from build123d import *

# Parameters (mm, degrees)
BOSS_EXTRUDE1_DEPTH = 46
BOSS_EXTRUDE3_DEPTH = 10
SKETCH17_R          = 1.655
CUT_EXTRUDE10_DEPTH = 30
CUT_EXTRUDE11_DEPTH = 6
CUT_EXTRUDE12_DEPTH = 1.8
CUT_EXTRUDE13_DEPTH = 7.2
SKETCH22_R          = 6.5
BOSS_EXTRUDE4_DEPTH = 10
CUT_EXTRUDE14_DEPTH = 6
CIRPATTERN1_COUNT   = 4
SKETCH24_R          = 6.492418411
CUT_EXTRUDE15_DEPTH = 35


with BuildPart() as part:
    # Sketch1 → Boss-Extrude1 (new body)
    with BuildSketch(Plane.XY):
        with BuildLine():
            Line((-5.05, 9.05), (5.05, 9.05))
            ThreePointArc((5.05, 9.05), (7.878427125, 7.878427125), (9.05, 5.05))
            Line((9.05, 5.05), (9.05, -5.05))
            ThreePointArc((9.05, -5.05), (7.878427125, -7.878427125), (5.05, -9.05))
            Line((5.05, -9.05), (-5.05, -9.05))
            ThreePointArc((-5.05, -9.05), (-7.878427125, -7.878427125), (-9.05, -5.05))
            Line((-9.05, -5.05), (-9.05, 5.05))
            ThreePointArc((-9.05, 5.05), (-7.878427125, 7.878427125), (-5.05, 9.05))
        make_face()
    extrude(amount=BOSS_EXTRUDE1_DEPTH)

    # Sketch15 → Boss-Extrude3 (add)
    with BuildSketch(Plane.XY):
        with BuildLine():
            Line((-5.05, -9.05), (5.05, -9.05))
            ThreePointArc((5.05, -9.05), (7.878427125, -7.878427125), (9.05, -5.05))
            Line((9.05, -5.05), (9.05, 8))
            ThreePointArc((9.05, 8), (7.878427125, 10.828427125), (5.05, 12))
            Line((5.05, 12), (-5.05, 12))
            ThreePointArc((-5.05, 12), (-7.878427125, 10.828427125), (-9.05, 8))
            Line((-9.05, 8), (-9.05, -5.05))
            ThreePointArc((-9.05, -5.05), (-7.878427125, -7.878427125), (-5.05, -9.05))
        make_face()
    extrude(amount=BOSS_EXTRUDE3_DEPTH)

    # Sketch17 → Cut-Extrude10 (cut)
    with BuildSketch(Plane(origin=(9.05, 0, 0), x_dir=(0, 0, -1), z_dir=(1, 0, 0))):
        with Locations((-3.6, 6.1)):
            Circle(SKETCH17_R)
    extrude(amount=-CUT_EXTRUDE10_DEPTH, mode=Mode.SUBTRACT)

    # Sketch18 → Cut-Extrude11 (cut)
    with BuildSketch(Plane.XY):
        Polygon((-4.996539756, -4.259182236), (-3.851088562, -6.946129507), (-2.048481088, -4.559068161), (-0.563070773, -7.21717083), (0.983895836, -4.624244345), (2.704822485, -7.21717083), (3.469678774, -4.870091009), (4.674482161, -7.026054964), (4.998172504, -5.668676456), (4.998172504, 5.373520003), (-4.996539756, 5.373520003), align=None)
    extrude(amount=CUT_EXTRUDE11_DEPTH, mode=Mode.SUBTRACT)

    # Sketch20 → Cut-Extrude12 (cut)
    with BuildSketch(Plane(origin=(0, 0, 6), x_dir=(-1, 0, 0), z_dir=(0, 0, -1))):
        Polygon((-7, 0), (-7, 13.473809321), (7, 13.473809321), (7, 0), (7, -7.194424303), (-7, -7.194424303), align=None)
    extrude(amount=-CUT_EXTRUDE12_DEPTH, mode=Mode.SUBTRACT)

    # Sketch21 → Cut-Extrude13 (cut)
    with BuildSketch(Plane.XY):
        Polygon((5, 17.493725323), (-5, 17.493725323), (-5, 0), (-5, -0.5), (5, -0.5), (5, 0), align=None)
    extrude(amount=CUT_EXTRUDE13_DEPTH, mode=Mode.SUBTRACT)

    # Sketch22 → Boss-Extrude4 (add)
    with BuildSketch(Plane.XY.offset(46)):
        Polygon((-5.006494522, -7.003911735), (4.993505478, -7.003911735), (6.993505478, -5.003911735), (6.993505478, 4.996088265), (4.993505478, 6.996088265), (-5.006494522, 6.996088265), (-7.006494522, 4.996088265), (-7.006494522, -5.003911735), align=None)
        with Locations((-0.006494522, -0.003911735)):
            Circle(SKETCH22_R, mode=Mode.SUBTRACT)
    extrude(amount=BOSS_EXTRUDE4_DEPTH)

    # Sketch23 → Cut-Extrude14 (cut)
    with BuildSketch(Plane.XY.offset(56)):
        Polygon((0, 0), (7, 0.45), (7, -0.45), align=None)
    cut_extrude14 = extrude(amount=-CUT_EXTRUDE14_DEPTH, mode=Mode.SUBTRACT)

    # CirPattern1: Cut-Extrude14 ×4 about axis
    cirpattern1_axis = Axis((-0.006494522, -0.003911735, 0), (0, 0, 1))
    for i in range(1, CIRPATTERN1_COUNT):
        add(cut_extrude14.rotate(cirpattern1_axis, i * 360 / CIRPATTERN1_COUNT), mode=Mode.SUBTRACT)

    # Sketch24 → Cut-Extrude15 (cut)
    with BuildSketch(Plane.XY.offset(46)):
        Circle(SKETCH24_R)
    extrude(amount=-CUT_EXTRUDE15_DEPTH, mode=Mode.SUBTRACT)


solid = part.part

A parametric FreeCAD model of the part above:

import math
import FreeCAD as App
import Part
import Sketcher
from FreeCAD import Vector
Q = App.Units.Quantity

doc = App.newDocument("Part")
body = doc.addObject("PartDesign::Body", "Body")

# Sketch on XY plane
sketch1 = doc.addObject("Sketcher::SketchObject", "Sketch")
body.addObject(sketch1)
sketch1.AttachmentSupport = (doc.XY_Plane, [""])
sketch1.MapMode = "FlatFace"
sketch1.addGeometry([
    Part.LineSegment(Vector(5, 9.1, 0), Vector(-5, 9.1, 0)),  # 0
    Part.ArcOfCircle(Part.Circle(Vector(-5.1, 5.1, 0), Vector(0, 0, 1), 4), math.radians(90), math.radians(180)),  # 1
    Part.LineSegment(Vector(-9.1, 5, 0), Vector(-9.1, -5, 0)),  # 2
    Part.ArcOfCircle(Part.Circle(Vector(-5.1, -5.1, 0), Vector(0, 0, 1), 4), math.radians(180), math.radians(270)),  # 3
    Part.LineSegment(Vector(-5, -9.1, 0), Vector(5, -9.1, 0)),  # 4
    Part.ArcOfCircle(Part.Circle(Vector(5.1, -5.1, 0), Vector(0, 0, 1), 4), math.radians(-90), math.radians(0)),  # 5
    Part.LineSegment(Vector(9.1, -5, 0), Vector(9.1, 5, 0)),  # 6
    Part.ArcOfCircle(Part.Circle(Vector(5.1, 5.1, 0), Vector(0, 0, 1), 4), math.radians(0), math.radians(90)),  # 7
], False)
sketch1.addConstraint([
    Sketcher.Constraint("Tangent", 0, 2, 1, 1),
    Sketcher.Constraint("Tangent", 1, 2, 2, 1),
    Sketcher.Constraint("Tangent", 2, 2, 3, 1),
    Sketcher.Constraint("Tangent", 3, 2, 4, 1),
    Sketcher.Constraint("Tangent", 4, 2, 5, 1),
    Sketcher.Constraint("Tangent", 5, 2, 6, 1),
    Sketcher.Constraint("Tangent", 6, 2, 7, 1),
    Sketcher.Constraint("Tangent", 7, 2, 0, 1),
    Sketcher.Constraint("Horizontal", 0),
    Sketcher.Constraint("Vertical", 2),
    Sketcher.Constraint("Horizontal", 4),
    Sketcher.Constraint("Vertical", 6),
    Sketcher.Constraint("Equal", 1, 3),
    Sketcher.Constraint("Equal", 3, 5),
    Sketcher.Constraint("Equal", 5, 7),
    Sketcher.Constraint("Symmetric", 1, 3, 5, 3, -1, 1),
    Sketcher.Constraint("Equal", 4, 2),
    Sketcher.Constraint("Radius", 1, Q("4 mm")),
    Sketcher.Constraint("DistanceX", 0, 2, 0, 1, Q("10.1 mm")),
])
pad1 = doc.addObject("PartDesign::Pad", "Pad")
body.addObject(pad1)
pad1.Profile = sketch1
pad1.Length = 46

# Sketch on XY plane
sketch2 = doc.addObject("Sketcher::SketchObject", "Sketch001")
body.addObject(sketch2)
sketch2.AttachmentSupport = (doc.XY_Plane, [""])
sketch2.MapMode = "FlatFace"
sketch2.addGeometry([
    Part.LineSegment(Vector(-5, -9.1, 0), Vector(5, -9.1, 0)),  # 0
    Part.ArcOfCircle(Part.Circle(Vector(5.1, -5.1, 0), Vector(0, 0, 1), 4), math.radians(-90), math.radians(0)),  # 1
    Part.LineSegment(Vector(9.1, -5, 0), Vector(9.1, 8, 0)),  # 2
    Part.ArcOfCircle(Part.Circle(Vector(5.1, 8, 0), Vector(0, 0, 1), 4), math.radians(0), math.radians(90)),  # 3
    Part.LineSegment(Vector(5, 12, 0), Vector(-5, 12, 0)),  # 4
    Part.ArcOfCircle(Part.Circle(Vector(-5.1, 8, 0), Vector(0, 0, 1), 4), math.radians(90), math.radians(180)),  # 5
    Part.LineSegment(Vector(-9.1, 8, 0), Vector(-9.1, -5, 0)),  # 6
    Part.ArcOfCircle(Part.Circle(Vector(-5.1, -5.1, 0), Vector(0, 0, 1), 4), math.radians(180), math.radians(270)),  # 7
], False)
sketch2.addConstraint([
    Sketcher.Constraint("Tangent", 0, 2, 1, 1),
    Sketcher.Constraint("Tangent", 1, 2, 2, 1),
    Sketcher.Constraint("Tangent", 2, 2, 3, 1),
    Sketcher.Constraint("Tangent", 3, 2, 4, 1),
    Sketcher.Constraint("Tangent", 4, 2, 5, 1),
    Sketcher.Constraint("Tangent", 5, 2, 6, 1),
    Sketcher.Constraint("Tangent", 6, 2, 7, 1),
    Sketcher.Constraint("Tangent", 7, 2, 0, 1),
    Sketcher.Constraint("Horizontal", 0),
    Sketcher.Constraint("Vertical", 2),
    Sketcher.Constraint("Horizontal", 4),
    Sketcher.Constraint("Vertical", 6),
    Sketcher.Constraint("Equal", 1, 3),
    Sketcher.Constraint("Equal", 3, 5),
    Sketcher.Constraint("Equal", 5, 7),
    Sketcher.Constraint("Radius", 1, Q("4 mm")),
    Sketcher.Constraint("DistanceX", 0, 1, 0, 2, Q("10.1 mm")),
    Sketcher.Constraint("DistanceY", -1, 1, 3, 3, Q("8 mm")),
    Sketcher.Constraint("DistanceY", 2, 1, 2, 2, Q("13.05 mm")),
    Sketcher.Constraint("DistanceX", -1, 1, 1, 3, Q("5.05 mm")),
])
pad2 = doc.addObject("PartDesign::Pad", "Pad001")
body.addObject(pad2)
pad2.Profile = sketch2
pad2.Length = 10

# Sketch on YZ plane
sketch3 = doc.addObject("Sketcher::SketchObject", "Sketch002")
body.addObject(sketch3)
sketch3.AttachmentSupport = (doc.YZ_Plane, [""])
sketch3.MapMode = "FlatFace"
sketch3.AttachmentOffset = App.Placement(Vector(0, 0, 9.05), App.Rotation())
sketch3.addGeometry(Part.Circle(Vector(6.1, 3.6, 0), Vector(0, 0, 1), 1.7), False)
sketch3.addConstraint([
    Sketcher.Constraint("Diameter", 0, Q("3.31 mm")),
    Sketcher.Constraint("DistanceX", -1, 1, 0, 3, Q("6.1 mm")),
    Sketcher.Constraint("DistanceY", -1, 1, 0, 3, Q("3.6 mm")),
])
pocket1 = doc.addObject("PartDesign::Pocket", "Pocket")
body.addObject(pocket1)
pocket1.Profile = sketch3
pocket1.Length = 30

# Sketch on XY plane
sketch4 = doc.addObject("Sketcher::SketchObject", "Sketch003")
body.addObject(sketch4)
sketch4.AttachmentSupport = (doc.XY_Plane, [""])
sketch4.MapMode = "FlatFace"
sketch4.addGeometry([
    Part.LineSegment(Vector(-5, -4.3, 0), Vector(-3.9, -6.9, 0)),  # 0
    Part.LineSegment(Vector(-3.9, -6.9, 0), Vector(-2, -4.6, 0)),  # 1
    Part.LineSegment(Vector(-2, -4.6, 0), Vector(-0.6, -7.2, 0)),  # 2
    Part.LineSegment(Vector(-0.6, -7.2, 0), Vector(1, -4.6, 0)),  # 3
    Part.LineSegment(Vector(1, -4.6, 0), Vector(2.7, -7.2, 0)),  # 4
    Part.LineSegment(Vector(2.7, -7.2, 0), Vector(3.5, -4.9, 0)),  # 5
    Part.LineSegment(Vector(3.5, -4.9, 0), Vector(4.7, -7, 0)),  # 6
    Part.LineSegment(Vector(4.7, -7, 0), Vector(5, -5.7, 0)),  # 7
    Part.LineSegment(Vector(5, -5.7, 0), Vector(5, 5.4, 0)),  # 8
    Part.LineSegment(Vector(5, 5.4, 0), Vector(-5, 5.4, 0)),  # 9
    Part.LineSegment(Vector(-5, 5.4, 0), Vector(-5, -4.3, 0)),  # 10
], False)
sketch4.addConstraint([
    Sketcher.Constraint("Coincident", 0, 2, 1, 1),
    Sketcher.Constraint("Coincident", 1, 2, 2, 1),
    Sketcher.Constraint("Coincident", 2, 2, 3, 1),
    Sketcher.Constraint("Coincident", 3, 2, 4, 1),
    Sketcher.Constraint("Coincident", 4, 2, 5, 1),
    Sketcher.Constraint("Coincident", 5, 2, 6, 1),
    Sketcher.Constraint("Coincident", 6, 2, 7, 1),
    Sketcher.Constraint("Coincident", 7, 2, 8, 1),
    Sketcher.Constraint("Coincident", 8, 2, 9, 1),
    Sketcher.Constraint("Coincident", 9, 2, 10, 1),
    Sketcher.Constraint("Coincident", 10, 2, 0, 1),
    Sketcher.Constraint("Vertical", 8),
    Sketcher.Constraint("Horizontal", 9),
    Sketcher.Constraint("Vertical", 10),
    Sketcher.Constraint("Parallel", 2, 6),
    Sketcher.Constraint("Horizontal", 2, 2, 4, 2),
    Sketcher.Constraint("Distance", 1, Q("2.99123 mm")),
    Sketcher.Constraint("Distance", 2, Q("3.044988 mm")),
    Sketcher.Constraint("Distance", 4, Q("3.11205 mm")),
    Sketcher.Constraint("Distance", 5, Q("2.46856 mm")),
    Sketcher.Constraint("Distance", 7, Q("1.39544 mm")),
    Sketcher.Constraint("DistanceX", 9, 2, 9, 1, Q("9.994712 mm")),
    Sketcher.Constraint("DistanceY", 8, 1, 8, 2, Q("11.042196 mm")),
    Sketcher.Constraint("DistanceY", 10, 2, 10, 1, Q("9.632702 mm")),
    Sketcher.Constraint("DistanceX", 0, 2, -1, 1, Q("3.851089 mm")),
    Sketcher.Constraint("DistanceY", 0, 2, -1, 1, Q("6.94613 mm")),
    Sketcher.Constraint("DistanceX", 1, 2, -1, 1, Q("2.048481 mm")),
    Sketcher.Constraint("DistanceX", 2, 2, -1, 1, Q("0.563071 mm")),
    Sketcher.Constraint("DistanceX", -1, 1, 5, 2, Q("3.469679 mm")),
    Sketcher.Constraint("DistanceY", 5, 2, -1, 1, Q("4.870091 mm")),
    Sketcher.Constraint("DistanceY", -1, 1, 8, 2, Q("5.37352 mm")),
    Sketcher.Constraint("DistanceX", 9, 2, -1, 1, Q("4.99654 mm")),
    Sketcher.Constraint("DistanceY", 6, 2, 3, 2, Q("2.401811 mm")),
])
pocket2 = doc.addObject("PartDesign::Pocket", "Pocket001")
body.addObject(pocket2)
pocket2.Profile = sketch4
pocket2.Length = 6
pocket2.Reversed = True

# Sketch on XY plane
sketch5 = doc.addObject("Sketcher::SketchObject", "Sketch004")
body.addObject(sketch5)
sketch5.AttachmentSupport = (doc.XY_Plane, [""])
sketch5.MapMode = "FlatFace"
sketch5.AttachmentOffset = App.Placement(Vector(0, 0, 6), App.Rotation())
sketch5.addGeometry([
    Part.LineSegment(Vector(7, 13, 0), Vector(7, -7, 0)),
    Part.LineSegment(Vector(7, -7, 0), Vector(-7, -7, 0)),
    Part.LineSegment(Vector(-7, -7, 0), Vector(-7, 13, 0)),
    Part.LineSegment(Vector(-7, 13, 0), Vector(7, 13, 0)),
], False)
sketch5.addConstraint([
    Sketcher.Constraint("Coincident", 0, 2, 1, 1),
    Sketcher.Constraint("Coincident", 1, 2, 2, 1),
    Sketcher.Constraint("Coincident", 2, 2, 3, 1),
    Sketcher.Constraint("Coincident", 3, 2, 0, 1),
    Sketcher.Constraint("Vertical", 0),
    Sketcher.Constraint("Horizontal", 1),
    Sketcher.Constraint("Vertical", 2),
    Sketcher.Constraint("Horizontal", 3),
    Sketcher.Constraint("DistanceX", 1, 2, 1, 1, Q("14 mm")),
    Sketcher.Constraint("DistanceX", -1, 1, 0, 2, Q("7 mm")),
    Sketcher.Constraint("DistanceY", 0, 2, 0, 1, Q("20.668234 mm")),
    Sketcher.Constraint("DistanceY", -1, 1, 2, 2, Q("13.473809 mm")),
])
pocket3 = doc.addObject("PartDesign::Pocket", "Pocket002")
body.addObject(pocket3)
pocket3.Profile = sketch5
pocket3.Length = 1.8
pocket3.Reversed = True

# Sketch on XY plane
sketch6 = doc.addObject("Sketcher::SketchObject", "Sketch005")
body.addObject(sketch6)
sketch6.AttachmentSupport = (doc.XY_Plane, [""])
sketch6.MapMode = "FlatFace"
sketch6.addGeometry([
    Part.LineSegment(Vector(5, 17, 0), Vector(-5, 17, 0)),
    Part.LineSegment(Vector(-5, 17, 0), Vector(-5, 0, 0)),
    Part.LineSegment(Vector(-5, 0, 0), Vector(5, 0, 0)),
    Part.LineSegment(Vector(5, 0, 0), Vector(5, 17, 0)),
], False)
sketch6.addConstraint([
    Sketcher.Constraint("Coincident", 0, 2, 1, 1),
    Sketcher.Constraint("Coincident", 1, 2, 2, 1),
    Sketcher.Constraint("Coincident", 2, 2, 3, 1),
    Sketcher.Constraint("Coincident", 3, 2, 0, 1),
    Sketcher.Constraint("Horizontal", 0),
    Sketcher.Constraint("Vertical", 1),
    Sketcher.Constraint("Horizontal", 2),
    Sketcher.Constraint("Vertical", 3),
    Sketcher.Constraint("DistanceX", 0, 2, 0, 1, Q("10 mm")),
    Sketcher.Constraint("DistanceX", 0, 2, -1, 1, Q("5 mm")),
    Sketcher.Constraint("DistanceY", 1, 2, -1, 1, Q("0.5 mm")),
    Sketcher.Constraint("DistanceY", 1, 2, 1, 1, Q("17.993725 mm")),
])
pocket4 = doc.addObject("PartDesign::Pocket", "Pocket003")
body.addObject(pocket4)
pocket4.Profile = sketch6
pocket4.Length = 7.2
pocket4.Reversed = True

# Sketch on XY plane
sketch7 = doc.addObject("Sketcher::SketchObject", "Sketch006")
body.addObject(sketch7)
sketch7.AttachmentSupport = (doc.XY_Plane, [""])
sketch7.MapMode = "FlatFace"
sketch7.AttachmentOffset = App.Placement(Vector(0, 0, 46), App.Rotation())
sketch7.addGeometry([
    Part.LineSegment(Vector(-5, -7, 0), Vector(5, -7, 0)),  # 0
    Part.LineSegment(Vector(5, -7, 0), Vector(7, -5, 0)),  # 1
    Part.LineSegment(Vector(7, -5, 0), Vector(7, 5, 0)),  # 2
    Part.LineSegment(Vector(7, 5, 0), Vector(5, 7, 0)),  # 3
    Part.LineSegment(Vector(5, 7, 0), Vector(-5, 7, 0)),  # 4
    Part.LineSegment(Vector(-5, 7, 0), Vector(-7, 5, 0)),  # 5
    Part.LineSegment(Vector(-7, 5, 0), Vector(-7, -5, 0)),  # 6
    Part.LineSegment(Vector(-7, -5, 0), Vector(-5, -7, 0)),  # 7
    Part.Circle(Vector(0, 0, 0), Vector(0, 0, 1), 6.5),  # 8
], False)
sketch7.addConstraint([
    Sketcher.Constraint("Coincident", 0, 2, 1, 1),
    Sketcher.Constraint("Coincident", 1, 2, 2, 1),
    Sketcher.Constraint("Coincident", 2, 2, 3, 1),
    Sketcher.Constraint("Coincident", 3, 2, 4, 1),
    Sketcher.Constraint("Coincident", 4, 2, 5, 1),
    Sketcher.Constraint("Coincident", 5, 2, 6, 1),
    Sketcher.Constraint("Coincident", 6, 2, 7, 1),
    Sketcher.Constraint("Coincident", 7, 2, 0, 1),
    Sketcher.Constraint("Horizontal", 0),
    Sketcher.Constraint("Vertical", 2),
    Sketcher.Constraint("Horizontal", 4),
    Sketcher.Constraint("Vertical", 6),
    Sketcher.Constraint("Perpendicular", 1, 3),
    Sketcher.Constraint("Perpendicular", 3, 5),
    Sketcher.Constraint("Perpendicular", 5, 7),
    Sketcher.Constraint("Horizontal", 2, 2, 5, 2),
    Sketcher.Constraint("Horizontal", 1, 2, 6, 2),
    Sketcher.Constraint("Vertical", 0, 2, 3, 2),
    Sketcher.Constraint("Vertical", 4, 2, 7, 2),
    Sketcher.Constraint("Equal", 4, 2),
    Sketcher.Constraint("Diameter", 8, Q("13 mm")),
    Sketcher.Constraint("DistanceX", 0, 1, 0, 2, Q("10 mm")),
    Sketcher.Constraint("DistanceX", 8, 3, 0, 2, Q("5 mm")),
    Sketcher.Constraint("DistanceY", 0, 2, 8, 3, Q("7 mm")),
    Sketcher.Constraint("DistanceX", 0, 2, 1, 2, Q("2 mm")),
    Sketcher.Constraint("DistanceY", 8, 3, -1, 1, Q("0.003912 mm")),
    Sketcher.Constraint("DistanceX", 8, 3, -1, 1, Q("0.006495 mm")),
])
pad3 = doc.addObject("PartDesign::Pad", "Pad002")
body.addObject(pad3)
pad3.Profile = sketch7
pad3.Length = 10

# Sketch on XY plane
sketch8 = doc.addObject("Sketcher::SketchObject", "Sketch007")
body.addObject(sketch8)
sketch8.AttachmentSupport = (doc.XY_Plane, [""])
sketch8.MapMode = "FlatFace"
sketch8.AttachmentOffset = App.Placement(Vector(0, 0, 56), App.Rotation())
sketch8.addGeometry([
    Part.LineSegment(Vector(7, 0.5, 0), Vector(0, 0, 0)),
    Part.LineSegment(Vector(0, 0, 0), Vector(7, -0.5, 0)),
    Part.LineSegment(Vector(7, -0.5, 0), Vector(7, 0.5, 0)),
], False)
sketch8.addConstraint([
    Sketcher.Constraint("Coincident", 0, 2, 1, 1),
    Sketcher.Constraint("Coincident", 1, 2, 2, 1),
    Sketcher.Constraint("Coincident", 2, 2, 0, 1),
    Sketcher.Constraint("Vertical", 2),
    Sketcher.Constraint("Coincident", 0, 2, -1, 1),
    Sketcher.Constraint("Equal", 0, 1),
    Sketcher.Constraint("DistanceY", 2, 1, 2, 2, Q("0.9 mm")),
    Sketcher.Constraint("DistanceX", -1, 1, 1, 2, Q("7 mm")),
])
pocket5 = doc.addObject("PartDesign::Pocket", "Pocket004")
body.addObject(pocket5)
pocket5.Profile = sketch8
pocket5.Length = 6
doc.recompute()

datumline = doc.addObject("PartDesign::Line", "DatumLine")
body.addObject(datumline)
datumline.Placement = App.Placement(Vector(-0.006495, -0.003912, 0), App.Rotation(Vector(0, 0, 1), Vector(0, 0, 1)))
polarpattern = doc.addObject("PartDesign::PolarPattern", "PolarPattern")
body.addObject(polarpattern)
polarpattern.Originals = [pocket5]
polarpattern.Axis = (datumline, [""])
polarpattern.Angle = 360
polarpattern.Occurrences = 4
body.Tip = polarpattern

# Sketch on XY plane
sketch9 = doc.addObject("Sketcher::SketchObject", "Sketch008")
body.addObject(sketch9)
sketch9.AttachmentSupport = (doc.XY_Plane, [""])
sketch9.MapMode = "FlatFace"
sketch9.AttachmentOffset = App.Placement(Vector(0, 0, 46), App.Rotation())
sketch9.addGeometry(Part.Circle(Vector(0, 0, 0), Vector(0, 0, 1), 6), False)
sketch9.addConstraint([
    Sketcher.Constraint("Coincident", 0, 3, -1, 1),
    Sketcher.Constraint("Diameter", 0, Q("12.984837 mm")),
])
pocket6 = doc.addObject("PartDesign::Pocket", "Pocket005")
body.addObject(pocket6)
pocket6.Profile = sketch9
pocket6.Length = 35

doc.recompute()
